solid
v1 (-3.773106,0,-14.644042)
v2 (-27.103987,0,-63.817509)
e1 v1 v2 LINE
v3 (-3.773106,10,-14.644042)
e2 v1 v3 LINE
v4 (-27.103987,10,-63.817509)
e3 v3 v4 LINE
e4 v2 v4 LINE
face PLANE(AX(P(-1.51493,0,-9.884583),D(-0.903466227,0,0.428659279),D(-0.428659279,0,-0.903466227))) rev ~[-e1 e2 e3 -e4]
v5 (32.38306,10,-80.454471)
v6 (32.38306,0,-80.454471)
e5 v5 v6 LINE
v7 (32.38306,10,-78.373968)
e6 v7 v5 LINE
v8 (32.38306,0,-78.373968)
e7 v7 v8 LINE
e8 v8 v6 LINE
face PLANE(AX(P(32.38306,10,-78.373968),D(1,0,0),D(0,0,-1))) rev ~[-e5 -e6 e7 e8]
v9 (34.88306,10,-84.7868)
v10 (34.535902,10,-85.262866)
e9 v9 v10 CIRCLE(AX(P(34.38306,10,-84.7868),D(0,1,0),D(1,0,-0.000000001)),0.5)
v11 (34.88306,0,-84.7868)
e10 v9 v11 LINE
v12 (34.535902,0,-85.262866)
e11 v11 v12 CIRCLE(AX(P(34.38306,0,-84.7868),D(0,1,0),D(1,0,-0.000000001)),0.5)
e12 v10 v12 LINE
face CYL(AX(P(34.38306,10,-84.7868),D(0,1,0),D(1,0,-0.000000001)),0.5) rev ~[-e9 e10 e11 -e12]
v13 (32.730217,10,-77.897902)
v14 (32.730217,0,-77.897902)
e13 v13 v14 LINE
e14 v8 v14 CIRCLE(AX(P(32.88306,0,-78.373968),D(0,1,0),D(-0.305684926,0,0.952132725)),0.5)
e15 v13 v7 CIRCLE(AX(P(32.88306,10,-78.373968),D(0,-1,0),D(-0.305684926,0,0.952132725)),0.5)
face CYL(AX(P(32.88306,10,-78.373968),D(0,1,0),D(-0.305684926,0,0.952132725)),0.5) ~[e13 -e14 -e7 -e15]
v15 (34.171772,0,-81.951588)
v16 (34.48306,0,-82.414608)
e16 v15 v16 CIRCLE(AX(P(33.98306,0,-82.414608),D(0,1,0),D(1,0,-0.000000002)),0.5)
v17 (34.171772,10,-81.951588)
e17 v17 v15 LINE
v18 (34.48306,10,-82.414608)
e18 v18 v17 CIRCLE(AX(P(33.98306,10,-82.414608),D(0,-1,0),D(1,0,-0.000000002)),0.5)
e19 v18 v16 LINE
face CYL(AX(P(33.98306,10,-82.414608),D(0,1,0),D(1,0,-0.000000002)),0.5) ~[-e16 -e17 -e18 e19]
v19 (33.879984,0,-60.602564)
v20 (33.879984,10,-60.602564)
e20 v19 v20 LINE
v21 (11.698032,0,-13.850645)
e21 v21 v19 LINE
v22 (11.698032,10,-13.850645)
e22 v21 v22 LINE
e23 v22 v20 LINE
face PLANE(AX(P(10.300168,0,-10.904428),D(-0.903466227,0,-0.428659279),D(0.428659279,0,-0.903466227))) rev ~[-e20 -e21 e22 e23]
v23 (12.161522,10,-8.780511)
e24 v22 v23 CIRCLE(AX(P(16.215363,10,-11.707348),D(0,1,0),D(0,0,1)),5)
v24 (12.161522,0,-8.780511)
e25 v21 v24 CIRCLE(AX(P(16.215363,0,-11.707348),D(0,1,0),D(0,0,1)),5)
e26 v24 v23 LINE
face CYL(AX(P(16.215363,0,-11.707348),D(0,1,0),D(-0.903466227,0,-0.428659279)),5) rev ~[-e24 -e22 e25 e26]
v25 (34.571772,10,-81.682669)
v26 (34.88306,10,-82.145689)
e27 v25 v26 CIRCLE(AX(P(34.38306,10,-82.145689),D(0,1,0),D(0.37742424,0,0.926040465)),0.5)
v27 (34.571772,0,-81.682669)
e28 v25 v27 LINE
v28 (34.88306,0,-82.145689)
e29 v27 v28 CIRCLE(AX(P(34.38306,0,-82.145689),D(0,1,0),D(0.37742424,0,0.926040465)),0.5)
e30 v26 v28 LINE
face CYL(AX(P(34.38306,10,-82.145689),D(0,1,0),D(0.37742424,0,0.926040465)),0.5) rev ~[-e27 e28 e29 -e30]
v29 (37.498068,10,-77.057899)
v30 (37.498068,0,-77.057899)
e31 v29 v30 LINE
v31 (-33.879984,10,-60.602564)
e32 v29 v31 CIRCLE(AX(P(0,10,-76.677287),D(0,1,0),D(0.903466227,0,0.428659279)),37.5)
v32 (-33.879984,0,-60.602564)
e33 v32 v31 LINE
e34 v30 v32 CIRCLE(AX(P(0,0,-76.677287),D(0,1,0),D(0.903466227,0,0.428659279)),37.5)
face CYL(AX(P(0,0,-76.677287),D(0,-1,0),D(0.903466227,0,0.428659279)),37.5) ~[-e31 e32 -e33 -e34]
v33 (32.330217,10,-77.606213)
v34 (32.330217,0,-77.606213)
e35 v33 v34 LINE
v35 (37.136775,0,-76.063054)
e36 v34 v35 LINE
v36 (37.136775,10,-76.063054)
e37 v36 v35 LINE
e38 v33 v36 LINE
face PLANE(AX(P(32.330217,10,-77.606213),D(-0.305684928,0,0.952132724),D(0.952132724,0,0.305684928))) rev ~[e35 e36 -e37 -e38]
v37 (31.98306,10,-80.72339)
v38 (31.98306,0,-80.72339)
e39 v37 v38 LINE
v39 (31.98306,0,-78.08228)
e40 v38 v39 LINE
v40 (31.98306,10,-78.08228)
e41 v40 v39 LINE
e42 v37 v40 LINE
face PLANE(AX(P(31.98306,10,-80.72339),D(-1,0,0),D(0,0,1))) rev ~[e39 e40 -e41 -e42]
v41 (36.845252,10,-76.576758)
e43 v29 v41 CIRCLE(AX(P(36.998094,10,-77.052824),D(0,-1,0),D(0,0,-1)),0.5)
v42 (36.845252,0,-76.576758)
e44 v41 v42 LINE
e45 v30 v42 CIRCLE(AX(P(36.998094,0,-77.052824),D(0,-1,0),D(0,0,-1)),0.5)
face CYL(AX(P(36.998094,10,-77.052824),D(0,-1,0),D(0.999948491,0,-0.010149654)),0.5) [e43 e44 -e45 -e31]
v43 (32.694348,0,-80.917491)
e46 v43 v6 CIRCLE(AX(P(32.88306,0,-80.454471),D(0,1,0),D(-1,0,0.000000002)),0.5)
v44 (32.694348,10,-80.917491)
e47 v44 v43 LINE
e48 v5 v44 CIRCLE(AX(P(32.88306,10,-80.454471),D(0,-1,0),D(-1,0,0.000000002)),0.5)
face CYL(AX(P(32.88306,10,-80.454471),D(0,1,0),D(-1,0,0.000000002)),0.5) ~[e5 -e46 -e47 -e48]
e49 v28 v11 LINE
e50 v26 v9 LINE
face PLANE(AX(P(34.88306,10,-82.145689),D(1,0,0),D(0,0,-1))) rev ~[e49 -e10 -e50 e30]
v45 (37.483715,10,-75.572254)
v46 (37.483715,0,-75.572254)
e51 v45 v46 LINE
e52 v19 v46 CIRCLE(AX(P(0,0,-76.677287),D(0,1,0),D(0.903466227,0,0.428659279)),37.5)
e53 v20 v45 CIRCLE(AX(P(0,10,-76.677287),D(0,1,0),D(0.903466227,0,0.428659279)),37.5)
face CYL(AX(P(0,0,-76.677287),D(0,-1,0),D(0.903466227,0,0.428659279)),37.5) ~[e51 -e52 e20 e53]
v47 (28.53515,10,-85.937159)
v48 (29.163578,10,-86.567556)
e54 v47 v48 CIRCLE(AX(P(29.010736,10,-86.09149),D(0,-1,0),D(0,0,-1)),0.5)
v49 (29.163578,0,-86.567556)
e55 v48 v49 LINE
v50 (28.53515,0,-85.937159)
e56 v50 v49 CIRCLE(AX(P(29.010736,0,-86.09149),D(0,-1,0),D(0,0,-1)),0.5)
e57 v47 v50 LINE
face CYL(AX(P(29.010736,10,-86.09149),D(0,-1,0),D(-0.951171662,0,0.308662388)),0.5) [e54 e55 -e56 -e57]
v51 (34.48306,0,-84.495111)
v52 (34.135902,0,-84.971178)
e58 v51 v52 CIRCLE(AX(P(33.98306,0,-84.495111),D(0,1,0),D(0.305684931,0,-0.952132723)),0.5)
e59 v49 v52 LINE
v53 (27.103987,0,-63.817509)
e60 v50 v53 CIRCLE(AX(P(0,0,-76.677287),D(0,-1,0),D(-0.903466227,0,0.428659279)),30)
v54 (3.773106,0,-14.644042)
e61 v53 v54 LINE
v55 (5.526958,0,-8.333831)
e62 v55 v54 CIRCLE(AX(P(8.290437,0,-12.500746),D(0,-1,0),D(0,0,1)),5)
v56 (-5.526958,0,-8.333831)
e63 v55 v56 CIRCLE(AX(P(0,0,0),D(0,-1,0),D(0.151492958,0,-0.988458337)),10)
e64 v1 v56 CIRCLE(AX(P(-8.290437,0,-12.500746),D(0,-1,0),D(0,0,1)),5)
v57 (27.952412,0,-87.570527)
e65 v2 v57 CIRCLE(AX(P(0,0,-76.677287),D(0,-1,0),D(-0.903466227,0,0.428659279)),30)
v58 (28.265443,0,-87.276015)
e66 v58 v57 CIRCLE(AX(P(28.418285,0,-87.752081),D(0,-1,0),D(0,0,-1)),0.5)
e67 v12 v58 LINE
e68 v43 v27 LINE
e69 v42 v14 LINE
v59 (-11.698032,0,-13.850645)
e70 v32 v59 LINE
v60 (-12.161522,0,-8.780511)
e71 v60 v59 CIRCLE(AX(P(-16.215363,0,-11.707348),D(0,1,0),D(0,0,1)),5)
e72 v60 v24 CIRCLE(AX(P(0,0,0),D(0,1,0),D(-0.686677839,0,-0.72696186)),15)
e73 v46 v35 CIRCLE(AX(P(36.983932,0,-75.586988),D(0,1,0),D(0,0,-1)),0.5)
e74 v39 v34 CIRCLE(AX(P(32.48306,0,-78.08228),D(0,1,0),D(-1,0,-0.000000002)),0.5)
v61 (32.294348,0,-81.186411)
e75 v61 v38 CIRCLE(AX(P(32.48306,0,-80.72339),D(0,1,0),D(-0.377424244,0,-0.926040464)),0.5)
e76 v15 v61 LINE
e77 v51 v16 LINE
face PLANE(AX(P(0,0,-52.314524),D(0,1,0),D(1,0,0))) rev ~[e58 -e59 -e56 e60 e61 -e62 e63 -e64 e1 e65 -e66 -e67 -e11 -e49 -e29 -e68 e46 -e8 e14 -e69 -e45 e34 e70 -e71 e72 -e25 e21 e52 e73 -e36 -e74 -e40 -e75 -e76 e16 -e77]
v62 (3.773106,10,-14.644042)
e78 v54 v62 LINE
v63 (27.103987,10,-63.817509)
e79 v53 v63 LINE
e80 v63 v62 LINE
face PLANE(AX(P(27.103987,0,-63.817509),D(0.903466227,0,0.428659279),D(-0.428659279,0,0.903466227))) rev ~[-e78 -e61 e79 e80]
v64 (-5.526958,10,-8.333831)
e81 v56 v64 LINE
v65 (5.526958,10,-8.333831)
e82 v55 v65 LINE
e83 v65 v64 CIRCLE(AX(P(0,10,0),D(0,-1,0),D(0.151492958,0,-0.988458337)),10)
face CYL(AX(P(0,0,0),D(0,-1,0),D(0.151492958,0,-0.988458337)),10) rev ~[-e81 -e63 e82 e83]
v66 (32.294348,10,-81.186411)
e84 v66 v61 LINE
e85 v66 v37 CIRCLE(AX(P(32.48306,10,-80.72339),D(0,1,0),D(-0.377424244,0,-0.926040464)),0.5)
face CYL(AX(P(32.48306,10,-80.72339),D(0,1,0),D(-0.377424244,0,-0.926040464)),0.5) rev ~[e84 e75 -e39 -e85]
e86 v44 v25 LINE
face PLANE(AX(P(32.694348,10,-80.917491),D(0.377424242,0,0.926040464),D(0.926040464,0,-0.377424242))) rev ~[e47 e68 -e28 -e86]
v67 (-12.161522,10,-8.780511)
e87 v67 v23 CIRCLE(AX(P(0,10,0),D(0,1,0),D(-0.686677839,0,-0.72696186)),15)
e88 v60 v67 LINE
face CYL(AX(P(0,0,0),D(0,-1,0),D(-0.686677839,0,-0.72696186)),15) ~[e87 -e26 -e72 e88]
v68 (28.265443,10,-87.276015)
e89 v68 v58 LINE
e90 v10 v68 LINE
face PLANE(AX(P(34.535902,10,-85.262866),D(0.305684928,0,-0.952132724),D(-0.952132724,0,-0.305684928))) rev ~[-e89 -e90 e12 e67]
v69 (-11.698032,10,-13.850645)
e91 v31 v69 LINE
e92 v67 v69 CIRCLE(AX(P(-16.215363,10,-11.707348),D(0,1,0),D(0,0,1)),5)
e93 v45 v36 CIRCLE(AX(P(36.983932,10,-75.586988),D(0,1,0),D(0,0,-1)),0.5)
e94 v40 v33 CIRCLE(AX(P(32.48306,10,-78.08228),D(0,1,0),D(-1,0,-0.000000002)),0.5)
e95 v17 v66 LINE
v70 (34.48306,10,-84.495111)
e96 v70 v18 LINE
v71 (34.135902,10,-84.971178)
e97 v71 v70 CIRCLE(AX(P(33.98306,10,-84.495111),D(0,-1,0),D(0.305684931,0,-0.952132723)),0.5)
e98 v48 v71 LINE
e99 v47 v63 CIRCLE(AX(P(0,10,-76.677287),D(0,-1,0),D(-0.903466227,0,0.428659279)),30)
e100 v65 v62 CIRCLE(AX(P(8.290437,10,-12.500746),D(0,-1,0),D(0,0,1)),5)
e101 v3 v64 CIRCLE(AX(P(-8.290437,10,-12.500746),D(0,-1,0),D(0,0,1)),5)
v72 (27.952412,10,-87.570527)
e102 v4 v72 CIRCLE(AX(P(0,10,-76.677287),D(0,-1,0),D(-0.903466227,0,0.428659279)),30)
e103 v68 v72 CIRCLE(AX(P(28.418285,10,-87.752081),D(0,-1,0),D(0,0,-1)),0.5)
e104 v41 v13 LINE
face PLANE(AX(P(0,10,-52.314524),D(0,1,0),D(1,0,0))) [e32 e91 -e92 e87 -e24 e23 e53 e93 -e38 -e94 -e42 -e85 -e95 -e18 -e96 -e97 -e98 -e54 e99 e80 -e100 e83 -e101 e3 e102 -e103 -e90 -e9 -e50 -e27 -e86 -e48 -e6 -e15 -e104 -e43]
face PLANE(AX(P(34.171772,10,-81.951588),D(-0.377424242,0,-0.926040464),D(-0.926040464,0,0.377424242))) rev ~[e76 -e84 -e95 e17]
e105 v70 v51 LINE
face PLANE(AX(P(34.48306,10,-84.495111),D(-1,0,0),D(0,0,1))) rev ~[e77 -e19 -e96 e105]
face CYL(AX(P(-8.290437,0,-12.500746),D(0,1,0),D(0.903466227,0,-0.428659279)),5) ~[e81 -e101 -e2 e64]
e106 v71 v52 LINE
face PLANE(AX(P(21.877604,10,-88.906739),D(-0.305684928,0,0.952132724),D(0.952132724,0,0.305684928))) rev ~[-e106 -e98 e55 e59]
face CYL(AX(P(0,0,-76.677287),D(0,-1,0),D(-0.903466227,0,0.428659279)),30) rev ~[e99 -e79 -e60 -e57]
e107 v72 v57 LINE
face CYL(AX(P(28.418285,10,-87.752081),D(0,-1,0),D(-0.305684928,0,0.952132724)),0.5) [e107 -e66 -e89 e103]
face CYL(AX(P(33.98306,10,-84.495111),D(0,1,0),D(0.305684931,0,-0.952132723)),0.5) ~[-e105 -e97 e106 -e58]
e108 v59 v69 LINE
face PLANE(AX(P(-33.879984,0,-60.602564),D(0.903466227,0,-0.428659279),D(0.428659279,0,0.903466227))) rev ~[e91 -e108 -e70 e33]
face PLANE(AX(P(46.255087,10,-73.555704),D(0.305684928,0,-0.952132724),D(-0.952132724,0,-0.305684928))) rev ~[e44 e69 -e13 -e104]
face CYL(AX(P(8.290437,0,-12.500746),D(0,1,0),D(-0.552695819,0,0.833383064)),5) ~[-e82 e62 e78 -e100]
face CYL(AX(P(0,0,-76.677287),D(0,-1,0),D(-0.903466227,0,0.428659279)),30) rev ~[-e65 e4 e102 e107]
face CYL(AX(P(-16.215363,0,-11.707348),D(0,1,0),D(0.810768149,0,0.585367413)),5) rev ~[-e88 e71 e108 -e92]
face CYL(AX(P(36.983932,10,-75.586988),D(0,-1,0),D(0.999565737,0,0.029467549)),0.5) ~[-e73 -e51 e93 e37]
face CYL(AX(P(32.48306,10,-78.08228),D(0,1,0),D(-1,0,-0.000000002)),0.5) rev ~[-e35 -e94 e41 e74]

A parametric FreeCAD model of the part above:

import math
import FreeCAD as App
import Part
import Sketcher


def edges_at(feature, points):
    """Names of the edges that pass closest to the given points."""
    edges = feature.Shape.Edges
    near = lambda p: min(range(len(edges)), key=lambda i: edges[i].distToShape(Part.Vertex(*p))[0])
    return sorted({f"Edge{near(p) + 1}" for p in points})

doc = App.newDocument("Part")
body = doc.addObject("PartDesign::Body", "Body")

# Sketch on XZ plane
sketch1 = body.newObject("Sketcher::SketchObject", "Sketch")
sketch1.AttachmentSupport = (doc.getObject("XZ_Plane"), [""])
sketch1.MapMode = "FlatFace"
sketch1.addGeometry(Part.LineSegment(App.Vector(10.3, -10.9, 0), App.Vector(33.9, -60.6, 0)), False)
sketch1.addGeometry(Part.ArcOfCircle(Part.Circle(App.Vector(0, -76.7, 0), App.Vector(0, 0, 1), 37.5), math.radians(155), math.radians(385)), False)
sketch1.addGeometry(Part.LineSegment(App.Vector(-33.9, -60.6, 0), App.Vector(-10.3, -10.9, 0)), False)
sketch1.addGeometry(Part.ArcOfCircle(Part.Circle(App.Vector(0, 0, 0), App.Vector(0, 0, 1), 15), math.radians(-47), math.radians(227)), False)
sketch1.addGeometry(Part.ArcOfCircle(Part.Circle(App.Vector(0, -76.7, 0), App.Vector(0, 0, 1), 30), math.radians(155), math.radians(385)), False)
sketch1.addGeometry(Part.LineSegment(App.Vector(27.1, -63.8, 0), App.Vector(1.5, -9.9, 0)), False)
sketch1.addGeometry(Part.ArcOfCircle(Part.Circle(App.Vector(0, 0, 0), App.Vector(0, 0, 1), 10), math.radians(-81), math.radians(261)), False)
sketch1.addGeometry(Part.LineSegment(App.Vector(-1.5, -9.9, 0), App.Vector(-27.1, -63.8, 0)), False)
sketch1.addConstraint(Sketcher.Constraint("Tangent", 0, 2, 1, 2))
sketch1.addConstraint(Sketcher.Constraint("Tangent", 1, 1, 2, 1))
sketch1.addConstraint(Sketcher.Constraint("Coincident", 2, 2, 3, 2))
sketch1.addConstraint(Sketcher.Constraint("Coincident", 3, 1, 0, 1))
sketch1.addConstraint(Sketcher.Constraint("Tangent", 4, 2, 5, 1))
sketch1.addConstraint(Sketcher.Constraint("Coincident", 5, 2, 6, 1))
sketch1.addConstraint(Sketcher.Constraint("Coincident", 6, 2, 7, 1))
sketch1.addConstraint(Sketcher.Constraint("Tangent", 7, 2, 4, 1))
sketch1.addConstraint(Sketcher.Constraint("Coincident", 3, 3, -1, 1))
sketch1.addConstraint(Sketcher.Constraint("Coincident", 6, 3, -1, 1))
sketch1.addConstraint(Sketcher.Constraint("Coincident", 4, 3, 1, 3))
sketch1.addConstraint(Sketcher.Constraint("Symmetric", 0, 2, 1, 1, -2))
sketch1.addConstraint(Sketcher.Constraint("Parallel", 0, 5))
sketch1.addConstraint(Sketcher.Constraint("Parallel", 2, 7))
sketch1.addConstraint(Sketcher.Constraint("Radius", 3, 15.0))
sketch1.addConstraint(Sketcher.Constraint("Radius", 4, 30.0))
sketch1.addConstraint(Sketcher.Constraint("Radius", 6, 10.0))
sketch1.addConstraint(Sketcher.Constraint("Radius", 1, 37.5))
sketch1.addConstraint(Sketcher.Constraint("DistanceY", 4, 2, -1, 1, 63.817509))
sketch1.addConstraint(Sketcher.Constraint("DistanceX", -1, 1, 5, 2, 1.51493))
pad1 = body.newObject("PartDesign::Pad", "Pad")
pad1.Profile = sketch1
pad1.Length = 10
pad1.Reversed = True
doc.recompute()

fillet = body.newObject("PartDesign::Fillet", "Fillet")
fillet.Base = (pad1, edges_at(pad1, [
    (10.3, 5, -10.904),
    (-10.3, 5, -10.904),
    (1.515, 5, -9.885),
    (-1.515, 5, -9.885),
]))
fillet.Radius = 5

# Sketch on XZ plane
sketch2 = body.newObject("Sketcher::SketchObject", "Sketch001")
sketch2.AttachmentSupport = (doc.getObject("XZ_Plane"), [""])
sketch2.MapMode = "FlatFace"
sketch2.AttachmentOffset = App.Placement(App.Vector(0, 0, -10), App.Rotation())
sketch2.addGeometry(Part.LineSegment(App.Vector(21.877604, -88.906739, 0), App.Vector(34.135902, -84.971178, 0)), False)
sketch2.addGeometry(Part.ArcOfCircle(Part.Circle(App.Vector(33.98306, -84.495111, 0), App.Vector(0, 0, 1), 0.5), math.radians(-72.200624), math.radians(0)), False)
sketch2.addGeometry(Part.LineSegment(App.Vector(34.48306, -84.495111, 0), App.Vector(34.48306, -82.414608, 0)), False)
sketch2.addGeometry(Part.ArcOfCircle(Part.Circle(App.Vector(33.98306, -82.414608, 0), App.Vector(0, 0, 1), 0.5), math.radians(0), math.radians(67.825775)), False)
sketch2.addGeometry(Part.LineSegment(App.Vector(34.171772, -81.951588, 0), App.Vector(32.294348, -81.186411, 0)), False)
sketch2.addGeometry(Part.ArcOfCircle(Part.Circle(App.Vector(32.48306, -80.72339, 0), App.Vector(0, 0, 1), 0.5), math.radians(-180), math.radians(-112.174225)), False)
sketch2.addGeometry(Part.LineSegment(App.Vector(31.98306, -80.72339, 0), App.Vector(31.98306, -78.08228, 0)), False)
sketch2.addGeometry(Part.ArcOfCircle(Part.Circle(App.Vector(32.48306, -78.08228, 0), App.Vector(0, 0, 1), 0.5), math.radians(107.799375), math.radians(180)), False)
sketch2.addGeometry(Part.LineSegment(App.Vector(32.330217, -77.606213, 0), App.Vector(46.132813, -73.174851, 0)), False)
sketch2.addGeometry(Part.LineSegment(App.Vector(46.132813, -73.174851, 0), App.Vector(46.255087, -73.555704, 0)), False)
sketch2.addGeometry(Part.LineSegment(App.Vector(46.255087, -73.555704, 0), App.Vector(32.730217, -77.897902, 0)), False)
sketch2.addGeometry(Part.ArcOfCircle(Part.Circle(App.Vector(32.88306, -78.373968, 0), App.Vector(0, 0, 1), 0.5), math.radians(107.799375), math.radians(180)), False)
sketch2.addGeometry(Part.LineSegment(App.Vector(32.38306, -78.373968, 0), App.Vector(32.38306, -80.454471, 0)), False)
sketch2.addGeometry(Part.ArcOfCircle(Part.Circle(App.Vector(32.88306, -80.454471, 0), App.Vector(0, 0, 1), 0.5), math.radians(180), math.radians(247.825775)), False)
sketch2.addGeometry(Part.LineSegment(App.Vector(32.694348, -80.917491, 0), App.Vector(34.571772, -81.682669, 0)), False)
sketch2.addGeometry(Part.ArcOfCircle(Part.Circle(App.Vector(34.38306, -82.145689, 0), App.Vector(0, 0, 1), 0.5), math.radians(0), math.radians(67.825775)), False)
sketch2.addGeometry(Part.LineSegment(App.Vector(34.88306, -82.145689, 0), App.Vector(34.88306, -84.7868, 0)), False)
sketch2.addGeometry(Part.ArcOfCircle(Part.Circle(App.Vector(34.38306, -84.7868, 0), App.Vector(0, 0, 1), 0.5), math.radians(-72.200624), math.radians(0)), False)
sketch2.addGeometry(Part.LineSegment(App.Vector(34.535902, -85.262866, 0), App.Vector(21.999878, -89.287592, 0)), False)
sketch2.addGeometry(Part.LineSegment(App.Vector(21.999878, -89.287592, 0), App.Vector(21.877604, -88.906739, 0)), False)
sketch2.addConstraint(Sketcher.Constraint("Coincident", 0, 2, 1, 1))
sketch2.addConstraint(Sketcher.Constraint("Coincident", 1, 2, 2, 1))
sketch2.addConstraint(Sketcher.Constraint("Coincident", 2, 2, 3, 1))
sketch2.addConstraint(Sketcher.Constraint("Coincident", 3, 2, 4, 1))
sketch2.addConstraint(Sketcher.Constraint("Coincident", 4, 2, 5, 2))
sketch2.addConstraint(Sketcher.Constraint("Coincident", 5, 1, 6, 1))
sketch2.addConstraint(Sketcher.Constraint("Coincident", 6, 2, 7, 2))
sketch2.addConstraint(Sketcher.Constraint("Coincident", 7, 1, 8, 1))
sketch2.addConstraint(Sketcher.Constraint("Coincident", 8, 2, 9, 1))
sketch2.addConstraint(Sketcher.Constraint("Coincident", 9, 2, 10, 1))
sketch2.addConstraint(Sketcher.Constraint("Coincident", 10, 2, 11, 1))
sketch2.addConstraint(Sketcher.Constraint("Coincident", 11, 2, 12, 1))
sketch2.addConstraint(Sketcher.Constraint("Coincident", 12, 2, 13, 1))
sketch2.addConstraint(Sketcher.Constraint("Coincident", 13, 2, 14, 1))
sketch2.addConstraint(Sketcher.Constraint("Coincident", 14, 2, 15, 2))
sketch2.addConstraint(Sketcher.Constraint("Coincident", 15, 1, 16, 1))
sketch2.addConstraint(Sketcher.Constraint("Coincident", 16, 2, 17, 2))
sketch2.addConstraint(Sketcher.Constraint("Coincident", 17, 1, 18, 1))
sketch2.addConstraint(Sketcher.Constraint("Coincident", 18, 2, 19, 1))
sketch2.addConstraint(Sketcher.Constraint("Coincident", 19, 2, 0, 1))
sketch2.addConstraint(Sketcher.Constraint("Vertical", 2))
sketch2.addConstraint(Sketcher.Constraint("Vertical", 6))
sketch2.addConstraint(Sketcher.Constraint("Vertical", 12))
sketch2.addConstraint(Sketcher.Constraint("Vertical", 16))
sketch2.addConstraint(Sketcher.Constraint("Radius", 1, 0.5))
sketch2.addConstraint(Sketcher.Constraint("Radius", 3, 0.5))
sketch2.addConstraint(Sketcher.Constraint("Radius", 5, 0.5))
sketch2.addConstraint(Sketcher.Constraint("Radius", 7, 0.5))
sketch2.addConstraint(Sketcher.Constraint("Radius", 11, 0.5))
sketch2.addConstraint(Sketcher.Constraint("Radius", 13, 0.5))
sketch2.addConstraint(Sketcher.Constraint("Radius", 15, 0.5))
sketch2.addConstraint(Sketcher.Constraint("Radius", 17, 0.5))
sketch2.addConstraint(Sketcher.Constraint("Distance", 9, 0.4))
sketch2.addConstraint(Sketcher.Constraint("Distance", 19, 0.4))
sketch2.addConstraint(Sketcher.Constraint("DistanceX", 5, 3, 3, 3, 1.5))
sketch2.addConstraint(Sketcher.Constraint("DistanceX", 7, 3, 11, 3, 0.4))
sketch2.addConstraint(Sketcher.Constraint("DistanceX", 3, 3, 15, 3, 0.4))
sketch2.addConstraint(Sketcher.Constraint("DistanceX", 7, 1, 10, 2, 0.4))
sketch2.addConstraint(Sketcher.Constraint("DistanceX", 4, 2, 13, 2, 0.4))
sketch2.addConstraint(Sketcher.Constraint("DistanceX", 3, 2, 14, 2, 0.4))
sketch2.addConstraint(Sketcher.Constraint("DistanceX", 0, 2, 17, 1, 0.4))
sketch2.addConstraint(Sketcher.Constraint("DistanceY", 6, 1, 6, 2, 2.641111))
sketch2.addConstraint(Sketcher.Constraint("DistanceY", 16, 2, 16, 1, 2.641111))
sketch2.addConstraint(Sketcher.Constraint("DistanceY", 17, 3, -1, 1, 84.7868))
sketch2.addConstraint(Sketcher.Constraint("DistanceY", 10, 2, -1, 1, 77.897902))
sketch2.addConstraint(Sketcher.Constraint("DistanceY", 16, 2, -1, 1, 84.7868))
sketch2.addConstraint(Sketcher.Constraint("DistanceY", 15, 3, 5, 3, 1.422299))
sketch2.addConstraint(Sketcher.Constraint("DistanceY", 15, 3, 3, 2, 0.194101))
sketch2.addConstraint(Sketcher.Constraint("DistanceY", 13, 2, 5, 3, 0.194101))
sketch2.addConstraint(Sketcher.Constraint("DistanceY", 13, 2, 5, 1, 0.194101))
sketch2.addConstraint(Sketcher.Constraint("DistanceY", 15, 1, 3, 2, 0.194101))
sketch2.addConstraint(Sketcher.Constraint("DistanceY", 18, 2, 5, 1, 8.564202))
sketch2.addConstraint(Sketcher.Constraint("DistanceX", 19, 2, 0, 2, 12.258298))
sketch2.addConstraint(Sketcher.Constraint("Distance", 0, 12.874569))
sketch2.addConstraint(Sketcher.Constraint("DistanceY", 2, 1, 2, 2, 2.080503))
sketch2.addConstraint(Sketcher.Constraint("DistanceY", 12, 2, 12, 1, 2.080503))
sketch2.addConstraint(Sketcher.Constraint("DistanceX", -1, 1, 1, 3, 33.98306))
sketch2.addConstraint(Sketcher.Constraint("DistanceY", 1, 3, -1, 1, 84.495111))
sketch2.addConstraint(Sketcher.Constraint("DistanceY", 3, 3, -1, 1, 82.414608))
sketch2.addConstraint(Sketcher.Constraint("DistanceY", 7, 3, -1, 1, 78.08228))
sketch2.addConstraint(Sketcher.Constraint("DistanceY", 13, 3, -1, 1, 80.454471))
sketch2.addConstraint(Sketcher.Constraint("DistanceY", 1, 2, -1, 1, 84.495111))
sketch2.addConstraint(Sketcher.Constraint("DistanceY", 8, 2, -1, 1, 73.174851))
sketch2.addConstraint(Sketcher.Constraint("DistanceY", 11, 2, -1, 1, 78.373968))
sketch2.addConstraint(Sketcher.Constraint("DistanceY", 19, 2, -1, 1, 88.906739))
sketch2.addConstraint(Sketcher.Constraint("DistanceY", 11, 3, 7, 3, 0.291688))
sketch2.addConstraint(Sketcher.Constraint("DistanceX", 3, 2, 8, 2, 11.961041))
sketch2.addConstraint(Sketcher.Constraint("DistanceX", 7, 1, 9, 2, 13.92487))
pocket1 = body.newObject("PartDesign::Pocket", "Pocket")
pocket1.Profile = sketch2
pocket1.Type = "ThroughAll"
pocket1.Reversed = True
doc.recompute()

fillet2 = body.newObject("PartDesign::Fillet", "Fillet001")
fillet2.Base = (pocket1, edges_at(pocket1, [
    (28.038, 5, -87.349),
    (37.499, 5, -76.367),
    (37.493, 5, -75.949),
    (28.215, 5, -86.872),
]))
fillet2.Radius = 0.5

doc.recompute()
